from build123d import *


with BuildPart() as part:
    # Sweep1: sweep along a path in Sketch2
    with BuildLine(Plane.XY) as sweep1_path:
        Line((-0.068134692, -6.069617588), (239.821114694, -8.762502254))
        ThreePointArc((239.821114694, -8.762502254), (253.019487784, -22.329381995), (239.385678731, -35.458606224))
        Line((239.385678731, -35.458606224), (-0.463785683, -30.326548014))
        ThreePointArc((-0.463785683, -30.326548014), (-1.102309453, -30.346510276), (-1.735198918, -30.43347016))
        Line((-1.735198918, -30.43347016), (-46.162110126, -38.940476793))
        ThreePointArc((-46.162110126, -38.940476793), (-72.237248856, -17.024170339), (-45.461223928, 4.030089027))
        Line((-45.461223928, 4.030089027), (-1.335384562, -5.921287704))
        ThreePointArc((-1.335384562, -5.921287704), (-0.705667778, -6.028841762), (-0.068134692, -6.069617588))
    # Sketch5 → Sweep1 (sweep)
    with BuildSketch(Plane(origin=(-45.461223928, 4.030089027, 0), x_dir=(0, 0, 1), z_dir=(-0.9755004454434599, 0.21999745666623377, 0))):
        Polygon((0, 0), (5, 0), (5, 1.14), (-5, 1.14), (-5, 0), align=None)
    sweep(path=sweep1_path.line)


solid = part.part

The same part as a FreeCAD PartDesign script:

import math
import FreeCAD as App
import Part
import Sketcher

V = App.Vector
Q = App.Units.Quantity

doc = App.newDocument("Part")
body = doc.addObject("PartDesign::Body", "Body")

sketch1 = doc.addObject("Sketcher::SketchObject", "Sketch")
body.addObject(sketch1)
sketch1.Placement = App.Placement(V(-45.461224, 4.030089, 0), App.Rotation(V(0, 0, 1), V(0.219997457, 0.975500445, 0), V(-0.975500445, 0.219997457, 0), "ZXY"))
sketch1.addGeometry([
    Part.LineSegment(V(5, 0, 0), V(5, 1.14, 0)),
    Part.LineSegment(V(5, 1.14, 0), V(-5, 1.14, 0)),
    Part.LineSegment(V(-5, 1.14, 0), V(-5, 0, 0)),
    Part.LineSegment(V(-5, 0, 0), V(5, 0, 0)),
], False)
sketch1.addConstraint([
    Sketcher.Constraint("Coincident", 0, 2, 1, 1),
    Sketcher.Constraint("Coincident", 1, 2, 2, 1),
    Sketcher.Constraint("Coincident", 2, 2, 3, 1),
    Sketcher.Constraint("Coincident", 3, 2, 0, 1),
    Sketcher.Constraint("Vertical", 0),
    Sketcher.Constraint("Horizontal", 1),
    Sketcher.Constraint("Vertical", 2),
    Sketcher.Constraint("Horizontal", 3),
    Sketcher.Constraint("Symmetric", 2, 2, 3, 2, -1, 1),
    Sketcher.Constraint("DistanceX", 1, 2, 1, 1, Q("10 mm")),
    Sketcher.Constraint("DistanceY", 0, 1, 0, 2, Q("1.14 mm")),
])

sketch2 = doc.addObject("Sketcher::SketchObject", "Sketch001")
body.addObject(sketch2)
sketch2.AttachmentSupport = (doc.XY_Plane, [""])
sketch2.MapMode = "FlatFace"
sketch2.addGeometry([
    Part.LineSegment(V(-0.068135, -6.069618, 0), V(239.821115, -8.762502, 0)),
    Part.ArcOfCircle(Part.Circle(V(239.671263, -22.111661, 0), V(0, 0, 1), 13.35), math.radians(-91.225771), math.radians(89.356851)),
    Part.LineSegment(V(239.385679, -35.458606, 0), V(-0.463786, -30.326548, 0)),
    Part.ArcOfCircle(Part.Circle(V(-0.593636, -36.395159, 0), V(0, 0, 1), 6.07), math.radians(88.774229), math.radians(100.839964)),
    Part.LineSegment(V(-1.735199, -30.43347, 0), V(-46.16211, -38.940477, 0)),
    Part.ArcOfCircle(Part.Circle(V(-50.290168, -17.382146, 0), V(0, 0, 1), 21.95), math.radians(77.291116), math.radians(280.839964)),
    Part.LineSegment(V(-45.461224, 4.030089, 0), V(-1.335385, -5.921288, 0)),
    Part.ArcOfCircle(Part.Circle(V(0, 0, 0), V(0, 0, 1), 6.07), math.radians(-102.708884), math.radians(-90.643149)),
], False)
sketch2.addConstraint([
    Sketcher.Constraint("Tangent", 0, 2, 1, 2),
    Sketcher.Constraint("Tangent", 1, 1, 2, 1),
    Sketcher.Constraint("Tangent", 2, 2, 3, 1),
    Sketcher.Constraint("Tangent", 3, 2, 4, 1),
    Sketcher.Constraint("Tangent", 4, 2, 5, 2),
    Sketcher.Constraint("Tangent", 5, 1, 6, 1),
    Sketcher.Constraint("Tangent", 6, 2, 7, 1),
    Sketcher.Constraint("Tangent", 7, 2, 0, 1),
    Sketcher.Constraint("Coincident", 7, 3, -1, 1),
    Sketcher.Constraint("Equal", 3, 7),
    Sketcher.Constraint("Equal", 0, 2),
    Sketcher.Constraint("Equal", 4, 6),
    Sketcher.Constraint("Radius", 1, Q("13.35 mm")),
    Sketcher.Constraint("Radius", 3, Q("6.07 mm")),
    Sketcher.Constraint("Radius", 5, Q("21.95 mm")),
    Sketcher.Constraint("DistanceX", 3, 2, -1, 1, Q("1.735199 mm")),
    Sketcher.Constraint("DistanceX", 3, 3, 1, 3, Q("240.264899 mm")),
    Sketcher.Constraint("DistanceX", 6, 2, 2, 2, Q("0.871599 mm")),
    Sketcher.Constraint("DistanceY", 1, 3, -1, 1, Q("22.111661 mm")),
])
doc.recompute()

additivepipe = doc.addObject("PartDesign::AdditivePipe", "AdditivePipe")
body.addObject(additivepipe)
additivepipe.Profile = sketch1
additivepipe.Spine = (sketch2, ["Edge1", "Edge2", "Edge3", "Edge4", "Edge5", "Edge6", "Edge7", "Edge8"])

doc.recompute()
